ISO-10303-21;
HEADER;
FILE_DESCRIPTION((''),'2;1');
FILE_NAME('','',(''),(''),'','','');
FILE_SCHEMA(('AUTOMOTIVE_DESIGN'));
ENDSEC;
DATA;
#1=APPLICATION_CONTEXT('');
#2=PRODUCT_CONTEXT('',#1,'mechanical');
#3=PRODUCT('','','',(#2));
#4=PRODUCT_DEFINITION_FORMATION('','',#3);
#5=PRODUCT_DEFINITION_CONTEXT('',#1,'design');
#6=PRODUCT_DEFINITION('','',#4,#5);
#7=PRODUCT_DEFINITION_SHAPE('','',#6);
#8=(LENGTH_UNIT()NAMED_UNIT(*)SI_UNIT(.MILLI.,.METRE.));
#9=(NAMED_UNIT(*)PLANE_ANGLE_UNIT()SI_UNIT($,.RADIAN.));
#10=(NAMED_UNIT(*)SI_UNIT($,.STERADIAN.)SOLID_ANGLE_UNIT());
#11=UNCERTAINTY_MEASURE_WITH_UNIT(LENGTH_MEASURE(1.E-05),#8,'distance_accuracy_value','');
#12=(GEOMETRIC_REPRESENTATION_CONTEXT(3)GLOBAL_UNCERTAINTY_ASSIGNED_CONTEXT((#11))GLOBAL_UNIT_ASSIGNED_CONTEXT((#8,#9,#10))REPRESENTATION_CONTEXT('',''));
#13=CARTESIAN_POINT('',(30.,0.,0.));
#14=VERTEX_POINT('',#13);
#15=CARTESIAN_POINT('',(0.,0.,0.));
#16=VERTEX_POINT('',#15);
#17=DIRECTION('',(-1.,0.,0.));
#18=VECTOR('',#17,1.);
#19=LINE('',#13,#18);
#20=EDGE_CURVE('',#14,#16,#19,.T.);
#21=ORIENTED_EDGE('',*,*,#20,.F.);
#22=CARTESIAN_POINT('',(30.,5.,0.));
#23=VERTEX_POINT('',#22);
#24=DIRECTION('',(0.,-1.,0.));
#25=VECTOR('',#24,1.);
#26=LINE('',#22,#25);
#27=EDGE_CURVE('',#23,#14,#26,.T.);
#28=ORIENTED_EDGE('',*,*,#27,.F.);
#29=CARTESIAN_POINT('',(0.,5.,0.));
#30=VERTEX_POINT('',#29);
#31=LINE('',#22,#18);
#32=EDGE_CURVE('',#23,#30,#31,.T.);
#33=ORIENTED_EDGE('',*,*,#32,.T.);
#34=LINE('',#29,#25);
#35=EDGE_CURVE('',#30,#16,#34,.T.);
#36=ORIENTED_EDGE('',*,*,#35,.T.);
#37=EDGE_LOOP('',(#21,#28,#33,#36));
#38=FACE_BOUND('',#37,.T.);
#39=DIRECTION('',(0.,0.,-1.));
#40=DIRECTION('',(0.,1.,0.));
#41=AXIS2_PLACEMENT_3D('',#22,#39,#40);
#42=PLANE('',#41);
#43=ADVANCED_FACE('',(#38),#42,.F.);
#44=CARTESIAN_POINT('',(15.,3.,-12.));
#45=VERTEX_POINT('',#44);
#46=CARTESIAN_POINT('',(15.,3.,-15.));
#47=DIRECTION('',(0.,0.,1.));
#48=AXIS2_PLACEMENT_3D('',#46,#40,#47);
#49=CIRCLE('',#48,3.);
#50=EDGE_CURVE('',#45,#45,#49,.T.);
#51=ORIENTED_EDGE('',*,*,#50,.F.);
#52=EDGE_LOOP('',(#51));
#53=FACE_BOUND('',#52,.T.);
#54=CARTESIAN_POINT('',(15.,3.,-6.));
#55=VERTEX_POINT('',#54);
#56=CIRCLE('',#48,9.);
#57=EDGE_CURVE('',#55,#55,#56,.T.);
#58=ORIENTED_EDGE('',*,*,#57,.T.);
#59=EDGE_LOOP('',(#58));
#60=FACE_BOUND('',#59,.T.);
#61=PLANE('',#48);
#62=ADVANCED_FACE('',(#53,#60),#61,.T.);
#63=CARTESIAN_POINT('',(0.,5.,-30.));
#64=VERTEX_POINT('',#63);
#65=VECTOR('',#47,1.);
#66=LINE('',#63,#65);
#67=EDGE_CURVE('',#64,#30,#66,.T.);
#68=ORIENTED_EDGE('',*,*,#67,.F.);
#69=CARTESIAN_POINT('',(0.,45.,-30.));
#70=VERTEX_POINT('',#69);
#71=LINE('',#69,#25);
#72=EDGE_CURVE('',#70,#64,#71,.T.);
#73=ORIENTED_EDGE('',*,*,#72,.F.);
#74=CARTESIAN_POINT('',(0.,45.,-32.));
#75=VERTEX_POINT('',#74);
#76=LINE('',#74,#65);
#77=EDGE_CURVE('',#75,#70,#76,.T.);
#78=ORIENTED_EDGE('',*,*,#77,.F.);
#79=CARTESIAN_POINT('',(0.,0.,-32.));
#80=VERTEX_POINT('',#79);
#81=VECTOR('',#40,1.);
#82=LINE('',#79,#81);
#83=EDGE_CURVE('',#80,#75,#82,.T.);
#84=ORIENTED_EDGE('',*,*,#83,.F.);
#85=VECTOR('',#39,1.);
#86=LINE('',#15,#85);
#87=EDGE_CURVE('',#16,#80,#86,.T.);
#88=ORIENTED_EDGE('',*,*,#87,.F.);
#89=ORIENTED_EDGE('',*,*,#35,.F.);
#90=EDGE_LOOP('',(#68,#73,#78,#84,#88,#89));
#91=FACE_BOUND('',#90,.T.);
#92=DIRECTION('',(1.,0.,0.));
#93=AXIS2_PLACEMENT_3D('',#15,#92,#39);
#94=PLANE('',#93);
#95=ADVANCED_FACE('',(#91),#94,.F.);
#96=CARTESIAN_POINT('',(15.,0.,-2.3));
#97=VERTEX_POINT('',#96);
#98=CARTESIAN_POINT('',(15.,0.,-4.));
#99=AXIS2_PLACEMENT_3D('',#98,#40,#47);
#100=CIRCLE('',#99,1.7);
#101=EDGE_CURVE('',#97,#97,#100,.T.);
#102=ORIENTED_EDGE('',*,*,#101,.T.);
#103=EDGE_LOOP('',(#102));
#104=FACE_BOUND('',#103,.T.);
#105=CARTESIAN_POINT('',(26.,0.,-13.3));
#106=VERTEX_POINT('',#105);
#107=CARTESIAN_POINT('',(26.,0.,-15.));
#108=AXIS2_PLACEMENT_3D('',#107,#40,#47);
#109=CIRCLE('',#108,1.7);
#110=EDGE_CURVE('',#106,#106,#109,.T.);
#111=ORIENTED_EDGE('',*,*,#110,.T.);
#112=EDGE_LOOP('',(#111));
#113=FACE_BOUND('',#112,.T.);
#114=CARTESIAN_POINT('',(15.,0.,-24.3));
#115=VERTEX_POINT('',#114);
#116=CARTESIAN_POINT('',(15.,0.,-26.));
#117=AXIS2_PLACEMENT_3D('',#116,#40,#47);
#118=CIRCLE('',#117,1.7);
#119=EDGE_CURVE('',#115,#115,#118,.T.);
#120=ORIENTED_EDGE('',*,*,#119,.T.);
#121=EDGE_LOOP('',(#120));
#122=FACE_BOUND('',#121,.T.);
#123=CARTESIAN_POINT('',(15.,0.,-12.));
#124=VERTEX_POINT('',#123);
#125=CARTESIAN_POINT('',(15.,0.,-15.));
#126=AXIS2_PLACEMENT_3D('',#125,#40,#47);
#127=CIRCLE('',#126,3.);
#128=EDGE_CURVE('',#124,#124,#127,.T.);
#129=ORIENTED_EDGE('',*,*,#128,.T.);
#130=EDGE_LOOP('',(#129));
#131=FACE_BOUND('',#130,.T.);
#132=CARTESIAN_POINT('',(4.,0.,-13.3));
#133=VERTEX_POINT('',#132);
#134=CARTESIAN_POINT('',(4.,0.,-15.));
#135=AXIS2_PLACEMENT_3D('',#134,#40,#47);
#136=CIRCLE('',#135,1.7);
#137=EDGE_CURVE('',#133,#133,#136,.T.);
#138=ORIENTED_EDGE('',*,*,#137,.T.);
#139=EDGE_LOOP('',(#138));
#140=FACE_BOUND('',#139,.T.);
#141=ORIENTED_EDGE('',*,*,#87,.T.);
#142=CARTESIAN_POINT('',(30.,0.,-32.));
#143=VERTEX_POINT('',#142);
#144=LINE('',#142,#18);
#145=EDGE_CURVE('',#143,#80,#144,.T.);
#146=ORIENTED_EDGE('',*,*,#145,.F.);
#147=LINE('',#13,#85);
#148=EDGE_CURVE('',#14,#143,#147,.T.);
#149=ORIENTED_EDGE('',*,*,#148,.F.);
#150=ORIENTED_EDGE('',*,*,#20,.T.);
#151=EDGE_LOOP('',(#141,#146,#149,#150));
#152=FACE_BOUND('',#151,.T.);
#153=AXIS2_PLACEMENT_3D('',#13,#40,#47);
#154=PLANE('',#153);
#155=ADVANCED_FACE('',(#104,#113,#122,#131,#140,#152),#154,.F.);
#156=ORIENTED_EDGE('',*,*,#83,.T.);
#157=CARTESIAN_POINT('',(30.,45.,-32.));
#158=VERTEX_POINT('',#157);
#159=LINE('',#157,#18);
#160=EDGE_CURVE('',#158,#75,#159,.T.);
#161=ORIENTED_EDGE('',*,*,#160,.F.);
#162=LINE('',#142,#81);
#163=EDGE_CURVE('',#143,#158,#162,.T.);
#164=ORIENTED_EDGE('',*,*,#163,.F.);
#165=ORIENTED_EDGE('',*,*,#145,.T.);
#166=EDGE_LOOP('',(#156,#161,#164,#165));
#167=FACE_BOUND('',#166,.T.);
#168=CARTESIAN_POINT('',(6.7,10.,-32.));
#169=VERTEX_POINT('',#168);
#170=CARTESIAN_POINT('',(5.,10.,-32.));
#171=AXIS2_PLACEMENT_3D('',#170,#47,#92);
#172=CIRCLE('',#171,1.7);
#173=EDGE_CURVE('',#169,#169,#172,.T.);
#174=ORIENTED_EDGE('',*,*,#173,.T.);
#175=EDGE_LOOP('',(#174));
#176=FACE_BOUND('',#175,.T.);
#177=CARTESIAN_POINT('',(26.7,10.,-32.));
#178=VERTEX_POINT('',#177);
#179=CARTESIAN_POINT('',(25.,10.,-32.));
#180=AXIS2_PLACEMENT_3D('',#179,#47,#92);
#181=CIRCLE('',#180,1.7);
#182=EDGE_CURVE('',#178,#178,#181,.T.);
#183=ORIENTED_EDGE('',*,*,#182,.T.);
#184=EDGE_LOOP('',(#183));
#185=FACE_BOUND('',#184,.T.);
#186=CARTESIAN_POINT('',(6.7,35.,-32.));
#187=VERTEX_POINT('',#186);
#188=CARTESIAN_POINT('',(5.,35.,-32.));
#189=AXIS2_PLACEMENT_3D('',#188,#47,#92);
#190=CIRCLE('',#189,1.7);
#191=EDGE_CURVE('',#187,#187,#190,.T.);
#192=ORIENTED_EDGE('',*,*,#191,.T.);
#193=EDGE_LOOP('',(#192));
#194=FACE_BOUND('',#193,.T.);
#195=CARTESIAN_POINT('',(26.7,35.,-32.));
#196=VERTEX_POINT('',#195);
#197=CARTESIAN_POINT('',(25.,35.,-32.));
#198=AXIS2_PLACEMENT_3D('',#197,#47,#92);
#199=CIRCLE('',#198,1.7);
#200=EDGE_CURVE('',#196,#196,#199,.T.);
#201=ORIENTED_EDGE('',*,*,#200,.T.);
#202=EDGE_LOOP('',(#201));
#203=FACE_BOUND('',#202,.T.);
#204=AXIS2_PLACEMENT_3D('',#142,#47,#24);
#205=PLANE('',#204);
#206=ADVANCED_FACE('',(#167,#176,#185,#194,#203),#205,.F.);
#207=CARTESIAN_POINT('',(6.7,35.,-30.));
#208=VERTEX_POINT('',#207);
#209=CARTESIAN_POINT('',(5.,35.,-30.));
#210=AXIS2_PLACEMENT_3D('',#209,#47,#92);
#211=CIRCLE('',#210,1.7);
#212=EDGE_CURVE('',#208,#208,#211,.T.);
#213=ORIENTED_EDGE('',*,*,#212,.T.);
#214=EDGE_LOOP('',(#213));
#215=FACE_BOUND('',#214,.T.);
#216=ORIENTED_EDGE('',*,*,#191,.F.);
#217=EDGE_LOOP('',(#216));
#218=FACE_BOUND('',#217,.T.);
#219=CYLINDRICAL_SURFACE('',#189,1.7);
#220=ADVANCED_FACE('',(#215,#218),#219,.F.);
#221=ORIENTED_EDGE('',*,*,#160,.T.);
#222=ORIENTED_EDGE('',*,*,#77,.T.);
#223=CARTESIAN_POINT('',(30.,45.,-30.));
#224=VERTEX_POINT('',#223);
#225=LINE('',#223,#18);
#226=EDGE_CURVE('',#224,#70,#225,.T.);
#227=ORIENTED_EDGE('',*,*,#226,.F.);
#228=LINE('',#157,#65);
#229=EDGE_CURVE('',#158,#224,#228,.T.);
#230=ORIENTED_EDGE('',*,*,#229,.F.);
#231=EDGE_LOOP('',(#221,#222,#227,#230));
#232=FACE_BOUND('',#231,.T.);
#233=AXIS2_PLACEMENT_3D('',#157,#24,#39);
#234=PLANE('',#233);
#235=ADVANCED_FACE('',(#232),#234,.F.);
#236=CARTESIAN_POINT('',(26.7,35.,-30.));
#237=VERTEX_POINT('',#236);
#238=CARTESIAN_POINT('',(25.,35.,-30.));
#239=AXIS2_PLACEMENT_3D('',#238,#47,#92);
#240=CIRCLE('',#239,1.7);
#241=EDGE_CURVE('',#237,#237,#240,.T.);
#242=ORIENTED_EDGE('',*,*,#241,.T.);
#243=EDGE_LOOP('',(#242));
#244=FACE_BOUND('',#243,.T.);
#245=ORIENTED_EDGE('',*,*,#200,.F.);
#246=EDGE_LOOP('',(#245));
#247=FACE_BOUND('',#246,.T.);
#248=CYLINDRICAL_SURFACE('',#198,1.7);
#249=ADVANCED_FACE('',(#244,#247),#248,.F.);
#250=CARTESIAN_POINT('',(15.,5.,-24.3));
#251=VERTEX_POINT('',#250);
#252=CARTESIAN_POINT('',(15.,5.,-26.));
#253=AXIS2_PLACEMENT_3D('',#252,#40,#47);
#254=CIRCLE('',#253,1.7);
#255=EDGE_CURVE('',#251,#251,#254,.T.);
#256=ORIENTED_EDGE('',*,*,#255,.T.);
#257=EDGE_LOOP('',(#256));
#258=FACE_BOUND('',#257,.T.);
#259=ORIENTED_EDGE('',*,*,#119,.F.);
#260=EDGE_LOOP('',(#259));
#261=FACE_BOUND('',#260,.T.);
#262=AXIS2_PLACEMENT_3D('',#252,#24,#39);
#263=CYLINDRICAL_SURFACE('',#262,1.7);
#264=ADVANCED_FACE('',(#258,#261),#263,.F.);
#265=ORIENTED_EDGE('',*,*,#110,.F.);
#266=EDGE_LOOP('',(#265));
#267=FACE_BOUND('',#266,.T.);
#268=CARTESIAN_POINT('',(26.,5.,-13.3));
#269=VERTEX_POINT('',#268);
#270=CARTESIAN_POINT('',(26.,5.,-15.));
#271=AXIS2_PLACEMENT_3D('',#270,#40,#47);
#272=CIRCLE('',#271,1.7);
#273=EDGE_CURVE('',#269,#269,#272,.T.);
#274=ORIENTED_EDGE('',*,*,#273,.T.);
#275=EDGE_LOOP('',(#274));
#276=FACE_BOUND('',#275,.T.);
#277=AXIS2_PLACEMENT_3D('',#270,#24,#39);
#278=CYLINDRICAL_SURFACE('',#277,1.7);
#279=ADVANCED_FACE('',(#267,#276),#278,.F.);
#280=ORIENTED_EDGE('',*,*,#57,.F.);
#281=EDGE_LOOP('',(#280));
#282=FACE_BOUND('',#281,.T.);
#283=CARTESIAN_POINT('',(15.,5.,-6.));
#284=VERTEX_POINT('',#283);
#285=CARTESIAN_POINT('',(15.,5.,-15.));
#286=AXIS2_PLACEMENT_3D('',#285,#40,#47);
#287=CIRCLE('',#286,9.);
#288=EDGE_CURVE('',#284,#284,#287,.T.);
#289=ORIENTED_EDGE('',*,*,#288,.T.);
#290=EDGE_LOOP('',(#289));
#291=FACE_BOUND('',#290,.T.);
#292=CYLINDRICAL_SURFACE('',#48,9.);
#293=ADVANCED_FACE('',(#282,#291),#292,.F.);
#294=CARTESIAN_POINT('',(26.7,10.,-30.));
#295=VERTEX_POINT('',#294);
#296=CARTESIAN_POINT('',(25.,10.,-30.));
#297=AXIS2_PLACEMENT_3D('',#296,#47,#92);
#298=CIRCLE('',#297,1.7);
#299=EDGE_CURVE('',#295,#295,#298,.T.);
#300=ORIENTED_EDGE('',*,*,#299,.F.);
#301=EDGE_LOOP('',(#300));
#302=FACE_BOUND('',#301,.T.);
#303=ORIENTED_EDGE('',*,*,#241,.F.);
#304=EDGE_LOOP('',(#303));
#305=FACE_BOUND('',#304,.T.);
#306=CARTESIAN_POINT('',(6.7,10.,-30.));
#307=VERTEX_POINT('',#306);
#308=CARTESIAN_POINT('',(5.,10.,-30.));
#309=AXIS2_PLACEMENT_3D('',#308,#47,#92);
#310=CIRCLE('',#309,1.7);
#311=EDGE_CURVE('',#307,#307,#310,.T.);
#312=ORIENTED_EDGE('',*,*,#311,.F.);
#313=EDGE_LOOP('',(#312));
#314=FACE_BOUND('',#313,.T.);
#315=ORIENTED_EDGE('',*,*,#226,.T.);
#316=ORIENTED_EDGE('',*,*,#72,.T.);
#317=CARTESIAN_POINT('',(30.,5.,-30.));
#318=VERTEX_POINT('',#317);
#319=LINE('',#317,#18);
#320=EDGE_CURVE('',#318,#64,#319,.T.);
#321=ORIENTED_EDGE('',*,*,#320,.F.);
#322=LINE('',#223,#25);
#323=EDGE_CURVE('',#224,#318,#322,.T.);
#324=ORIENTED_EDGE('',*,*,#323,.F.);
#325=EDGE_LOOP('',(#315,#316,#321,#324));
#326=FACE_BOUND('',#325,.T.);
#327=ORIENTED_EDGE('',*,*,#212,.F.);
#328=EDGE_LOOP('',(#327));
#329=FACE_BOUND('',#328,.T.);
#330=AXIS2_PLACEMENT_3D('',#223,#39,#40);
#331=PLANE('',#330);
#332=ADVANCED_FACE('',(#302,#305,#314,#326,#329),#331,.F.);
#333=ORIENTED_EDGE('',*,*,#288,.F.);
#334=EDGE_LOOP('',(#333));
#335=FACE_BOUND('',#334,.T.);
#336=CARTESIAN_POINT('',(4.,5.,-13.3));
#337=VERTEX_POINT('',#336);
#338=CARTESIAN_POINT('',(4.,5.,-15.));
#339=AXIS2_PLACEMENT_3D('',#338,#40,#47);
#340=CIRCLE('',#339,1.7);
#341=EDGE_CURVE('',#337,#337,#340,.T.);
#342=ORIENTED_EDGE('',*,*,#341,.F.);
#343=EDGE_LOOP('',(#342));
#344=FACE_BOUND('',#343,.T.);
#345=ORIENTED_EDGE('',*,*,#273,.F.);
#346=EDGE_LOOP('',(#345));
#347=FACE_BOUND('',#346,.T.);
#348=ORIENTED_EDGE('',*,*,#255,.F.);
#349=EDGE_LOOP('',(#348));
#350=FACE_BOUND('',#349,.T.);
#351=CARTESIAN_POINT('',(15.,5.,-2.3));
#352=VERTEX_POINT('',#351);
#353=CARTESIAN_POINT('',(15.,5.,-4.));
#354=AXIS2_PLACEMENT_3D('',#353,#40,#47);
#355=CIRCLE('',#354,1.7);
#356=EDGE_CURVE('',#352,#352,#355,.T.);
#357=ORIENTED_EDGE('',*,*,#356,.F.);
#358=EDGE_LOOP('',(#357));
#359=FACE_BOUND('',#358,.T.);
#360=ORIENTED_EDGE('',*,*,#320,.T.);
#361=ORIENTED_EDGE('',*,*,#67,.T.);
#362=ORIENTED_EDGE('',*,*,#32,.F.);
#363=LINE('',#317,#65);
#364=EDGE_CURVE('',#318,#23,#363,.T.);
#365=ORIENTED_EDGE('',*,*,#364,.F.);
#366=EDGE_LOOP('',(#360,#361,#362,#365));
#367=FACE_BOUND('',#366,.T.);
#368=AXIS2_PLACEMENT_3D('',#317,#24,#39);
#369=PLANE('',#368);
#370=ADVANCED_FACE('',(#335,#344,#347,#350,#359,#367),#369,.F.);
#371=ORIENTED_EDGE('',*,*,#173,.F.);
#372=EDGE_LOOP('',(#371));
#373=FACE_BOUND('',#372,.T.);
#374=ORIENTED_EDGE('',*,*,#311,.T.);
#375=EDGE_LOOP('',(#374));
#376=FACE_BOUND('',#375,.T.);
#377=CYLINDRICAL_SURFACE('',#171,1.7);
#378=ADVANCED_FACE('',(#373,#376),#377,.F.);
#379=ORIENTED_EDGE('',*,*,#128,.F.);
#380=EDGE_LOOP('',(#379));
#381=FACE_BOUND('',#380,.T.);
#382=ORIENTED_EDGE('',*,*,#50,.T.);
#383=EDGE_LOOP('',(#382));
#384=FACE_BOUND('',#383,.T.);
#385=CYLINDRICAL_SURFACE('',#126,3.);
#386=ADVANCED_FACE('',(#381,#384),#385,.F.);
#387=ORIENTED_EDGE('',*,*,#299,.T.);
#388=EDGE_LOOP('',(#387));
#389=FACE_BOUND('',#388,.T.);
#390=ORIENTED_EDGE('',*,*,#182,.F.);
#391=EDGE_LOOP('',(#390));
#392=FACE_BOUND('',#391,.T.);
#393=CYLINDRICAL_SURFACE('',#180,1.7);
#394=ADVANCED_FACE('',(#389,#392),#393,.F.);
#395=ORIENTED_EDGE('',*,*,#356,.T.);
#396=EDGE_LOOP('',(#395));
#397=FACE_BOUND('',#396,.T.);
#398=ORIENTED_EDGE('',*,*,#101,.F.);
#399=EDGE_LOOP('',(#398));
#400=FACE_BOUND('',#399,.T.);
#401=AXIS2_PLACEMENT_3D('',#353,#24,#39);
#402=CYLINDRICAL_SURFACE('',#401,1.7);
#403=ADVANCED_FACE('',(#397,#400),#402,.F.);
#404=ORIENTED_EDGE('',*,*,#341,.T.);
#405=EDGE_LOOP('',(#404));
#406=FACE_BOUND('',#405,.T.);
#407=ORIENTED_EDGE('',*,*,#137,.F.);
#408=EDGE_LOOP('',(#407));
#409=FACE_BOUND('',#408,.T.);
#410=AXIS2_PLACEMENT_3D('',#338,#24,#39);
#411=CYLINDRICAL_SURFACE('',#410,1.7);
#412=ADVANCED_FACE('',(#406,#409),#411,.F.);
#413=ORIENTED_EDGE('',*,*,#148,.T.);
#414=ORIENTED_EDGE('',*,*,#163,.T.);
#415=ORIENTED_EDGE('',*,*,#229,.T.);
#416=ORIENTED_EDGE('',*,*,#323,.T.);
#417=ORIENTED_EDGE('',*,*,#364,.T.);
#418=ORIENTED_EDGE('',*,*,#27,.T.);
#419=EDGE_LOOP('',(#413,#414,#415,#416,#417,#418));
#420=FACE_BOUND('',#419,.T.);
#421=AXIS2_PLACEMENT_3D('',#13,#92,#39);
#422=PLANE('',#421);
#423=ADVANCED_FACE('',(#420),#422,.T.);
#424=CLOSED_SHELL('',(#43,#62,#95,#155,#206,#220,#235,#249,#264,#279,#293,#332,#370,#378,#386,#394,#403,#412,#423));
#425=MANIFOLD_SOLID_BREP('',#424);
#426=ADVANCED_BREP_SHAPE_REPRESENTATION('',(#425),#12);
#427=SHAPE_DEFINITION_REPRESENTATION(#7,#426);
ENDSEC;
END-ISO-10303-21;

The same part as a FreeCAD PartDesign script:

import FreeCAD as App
import Part
import Sketcher
Q = App.Units.Quantity


def add_polygon(sketch, points):
    """Adds a closed chain of lines whose ends are joined by coincident constraints."""
    first, n = sketch.GeometryCount, len(points)
    for a, b in zip(points, points[1:] + points[:1]):
        sketch.addGeometry(Part.LineSegment(App.Vector(*a, 0), App.Vector(*b, 0)), False)
    for i in range(n):
        sketch.addConstraint(Sketcher.Constraint("Coincident", first + i, 2, first + (i + 1) % n, 1))

doc = App.newDocument("Part")
body = doc.addObject("PartDesign::Body", "Body")

sketch1 = doc.addObject("Sketcher::SketchObject", "Sketch")
body.addObject(sketch1)
sketch1.AttachmentSupport = (doc.YZ_Plane, [""])
sketch1.MapMode = "FlatFace"
add_polygon(sketch1, [(0, 0), (0, -32), (45, -32), (45, -30), (5, -30), (5, 0)])
sketch1.addConstraint(Sketcher.Constraint("Vertical", 0))
sketch1.addConstraint(Sketcher.Constraint("Horizontal", 1))
sketch1.addConstraint(Sketcher.Constraint("Vertical", 2))
sketch1.addConstraint(Sketcher.Constraint("Horizontal", 3))
sketch1.addConstraint(Sketcher.Constraint("Vertical", 4))
sketch1.addConstraint(Sketcher.Constraint("Horizontal", 5))
sketch1.addConstraint(Sketcher.Constraint("Coincident", 5, 2, -1, 1))
sketch1.addConstraint(Sketcher.Constraint("DistanceX", 1, 1, 1, 2, Q("45 mm")))
sketch1.addConstraint(Sketcher.Constraint("DistanceX", 3, 2, 3, 1, Q("40 mm")))
sketch1.addConstraint(Sketcher.Constraint("DistanceY", 0, 2, 0, 1, Q("32 mm")))
sketch1.addConstraint(Sketcher.Constraint("DistanceY", 2, 1, 2, 2, Q("2 mm")))
pad1 = doc.addObject("PartDesign::Pad", "Pad")
body.addObject(pad1)
pad1.Profile = sketch1
pad1.Length = 30

sketch2 = doc.addObject("Sketcher::SketchObject", "Sketch001")
body.addObject(sketch2)
sketch2.AttachmentSupport = (doc.XZ_Plane, [""])
sketch2.MapMode = "FlatFace"
sketch2.AttachmentOffset = App.Placement(App.Vector(0, 0, -5), App.Rotation())
sketch2.addGeometry(Part.Circle(App.Vector(15, -15, 0), App.Vector(0, 0, 1), 9), False)
sketch2.addGeometry(Part.Circle(App.Vector(15, -15, 0), App.Vector(0, 0, 1), 3), False)
sketch2.addConstraint(Sketcher.Constraint("Coincident", 1, 3, 0, 3))
sketch2.addConstraint(Sketcher.Constraint("Diameter", 0, Q("18 mm")))
sketch2.addConstraint(Sketcher.Constraint("Diameter", 1, Q("6 mm")))
sketch2.addConstraint(Sketcher.Constraint("DistanceX", -1, 1, 0, 3, Q("15 mm")))
sketch2.addConstraint(Sketcher.Constraint("DistanceY", 0, 3, -1, 1, Q("15 mm")))
pocket1 = doc.addObject("PartDesign::Pocket", "Pocket")
body.addObject(pocket1)
pocket1.Profile = sketch2
pocket1.Length = 2
pocket1.Reversed = True

sketch3 = doc.addObject("Sketcher::SketchObject", "Sketch002")
body.addObject(sketch3)
sketch3.AttachmentSupport = (doc.XZ_Plane, [""])
sketch3.MapMode = "FlatFace"
sketch3.AttachmentOffset = App.Placement(App.Vector(0, 0, -5), App.Rotation())
sketch3.addGeometry(Part.Circle(App.Vector(15, -15, 0), App.Vector(0, 0, 1), 3), False)
sketch3.addConstraint(Sketcher.Constraint("Diameter", 0, Q("6 mm")))
sketch3.addConstraint(Sketcher.Constraint("DistanceX", -1, 1, 0, 3, Q("15 mm")))
sketch3.addConstraint(Sketcher.Constraint("DistanceY", 0, 3, -1, 1, Q("15 mm")))
pocket2 = doc.addObject("PartDesign::Pocket", "Pocket001")
body.addObject(pocket2)
pocket2.Profile = sketch3
pocket2.Type = "ThroughAll"
pocket2.Reversed = True

sketch4 = doc.addObject("Sketcher::SketchObject", "Sketch003")
body.addObject(sketch4)
sketch4.AttachmentSupport = (doc.XZ_Plane, [""])
sketch4.MapMode = "FlatFace"
sketch4.AttachmentOffset = App.Placement(App.Vector(0, 0, -3), App.Rotation())
sketch4.addGeometry(Part.Circle(App.Vector(4, -15, 0), App.Vector(0, 0, 1), 1.7), False)
sketch4.addGeometry(Part.Circle(App.Vector(26, -15, 0), App.Vector(0, 0, 1), 1.7), False)
sketch4.addGeometry(Part.Circle(App.Vector(15, -4, 0), App.Vector(0, 0, 1), 1.7), False)
sketch4.addGeometry(Part.Circle(App.Vector(15, -26, 0), App.Vector(0, 0, 1), 1.7), False)
sketch4.addConstraint(Sketcher.Constraint("Equal", 0, 1))
sketch4.addConstraint(Sketcher.Constraint("Equal", 1, 2))
sketch4.addConstraint(Sketcher.Constraint("Equal", 2, 3))
sketch4.addConstraint(Sketcher.Constraint("Horizontal", 0, 3, 1, 3))
sketch4.addConstraint(Sketcher.Constraint("Vertical", 2, 3, 3, 3))
sketch4.addConstraint(Sketcher.Constraint("Diameter", 0, Q("3.4 mm")))
sketch4.addConstraint(Sketcher.Constraint("DistanceX", -1, 1, 0, 3, Q("4 mm")))
sketch4.addConstraint(Sketcher.Constraint("DistanceY", 0, 3, -1, 1, Q("15 mm")))
sketch4.addConstraint(Sketcher.Constraint("DistanceX", -1, 1, 1, 3, Q("26 mm")))
sketch4.addConstraint(Sketcher.Constraint("DistanceX", -1, 1, 2, 3, Q("15 mm")))
sketch4.addConstraint(Sketcher.Constraint("DistanceY", 2, 3, -1, 1, Q("4 mm")))
sketch4.addConstraint(Sketcher.Constraint("DistanceY", 3, 3, -1, 1, Q("26 mm")))
pocket3 = doc.addObject("PartDesign::Pocket", "Pocket002")
body.addObject(pocket3)
pocket3.Profile = sketch4
pocket3.Type = "ThroughAll"
pocket3.Midplane = True

sketch5 = doc.addObject("Sketcher::SketchObject", "Sketch004")
body.addObject(sketch5)
sketch5.AttachmentSupport = (doc.XY_Plane, [""])
sketch5.MapMode = "FlatFace"
sketch5.AttachmentOffset = App.Placement(App.Vector(0, 0, -30), App.Rotation())
sketch5.addGeometry(Part.Circle(App.Vector(5, 35, 0), App.Vector(0, 0, 1), 1.7), False)
sketch5.addGeometry(Part.Circle(App.Vector(25, 35, 0), App.Vector(0, 0, 1), 1.7), False)
sketch5.addGeometry(Part.Circle(App.Vector(25, 10, 0), App.Vector(0, 0, 1), 1.7), False)
sketch5.addGeometry(Part.Circle(App.Vector(5, 10, 0), App.Vector(0, 0, 1), 1.7), False)
sketch5.addConstraint(Sketcher.Constraint("Equal", 0, 1))
sketch5.addConstraint(Sketcher.Constraint("Equal", 1, 2))
sketch5.addConstraint(Sketcher.Constraint("Equal", 2, 3))
sketch5.addConstraint(Sketcher.Constraint("Horizontal", 0, 3, 1, 3))
sketch5.addConstraint(Sketcher.Constraint("Horizontal", 2, 3, 3, 3))
sketch5.addConstraint(Sketcher.Constraint("Vertical", 1, 3, 2, 3))
sketch5.addConstraint(Sketcher.Constraint("Vertical", 0, 3, 3, 3))
sketch5.addConstraint(Sketcher.Constraint("Diameter", 0, Q("3.4 mm")))
sketch5.addConstraint(Sketcher.Constraint("DistanceX", -1, 1, 0, 3, Q("5 mm")))
sketch5.addConstraint(Sketcher.Constraint("DistanceY", -1, 1, 0, 3, Q("35 mm")))
sketch5.addConstraint(Sketcher.Constraint("DistanceX", -1, 1, 1, 3, Q("25 mm")))
sketch5.addConstraint(Sketcher.Constraint("DistanceY", -1, 1, 2, 3, Q("10 mm")))
pocket4 = doc.addObject("PartDesign::Pocket", "Pocket003")
body.addObject(pocket4)
pocket4.Profile = sketch5
pocket4.Type = "ThroughAll"

doc.recompute()
